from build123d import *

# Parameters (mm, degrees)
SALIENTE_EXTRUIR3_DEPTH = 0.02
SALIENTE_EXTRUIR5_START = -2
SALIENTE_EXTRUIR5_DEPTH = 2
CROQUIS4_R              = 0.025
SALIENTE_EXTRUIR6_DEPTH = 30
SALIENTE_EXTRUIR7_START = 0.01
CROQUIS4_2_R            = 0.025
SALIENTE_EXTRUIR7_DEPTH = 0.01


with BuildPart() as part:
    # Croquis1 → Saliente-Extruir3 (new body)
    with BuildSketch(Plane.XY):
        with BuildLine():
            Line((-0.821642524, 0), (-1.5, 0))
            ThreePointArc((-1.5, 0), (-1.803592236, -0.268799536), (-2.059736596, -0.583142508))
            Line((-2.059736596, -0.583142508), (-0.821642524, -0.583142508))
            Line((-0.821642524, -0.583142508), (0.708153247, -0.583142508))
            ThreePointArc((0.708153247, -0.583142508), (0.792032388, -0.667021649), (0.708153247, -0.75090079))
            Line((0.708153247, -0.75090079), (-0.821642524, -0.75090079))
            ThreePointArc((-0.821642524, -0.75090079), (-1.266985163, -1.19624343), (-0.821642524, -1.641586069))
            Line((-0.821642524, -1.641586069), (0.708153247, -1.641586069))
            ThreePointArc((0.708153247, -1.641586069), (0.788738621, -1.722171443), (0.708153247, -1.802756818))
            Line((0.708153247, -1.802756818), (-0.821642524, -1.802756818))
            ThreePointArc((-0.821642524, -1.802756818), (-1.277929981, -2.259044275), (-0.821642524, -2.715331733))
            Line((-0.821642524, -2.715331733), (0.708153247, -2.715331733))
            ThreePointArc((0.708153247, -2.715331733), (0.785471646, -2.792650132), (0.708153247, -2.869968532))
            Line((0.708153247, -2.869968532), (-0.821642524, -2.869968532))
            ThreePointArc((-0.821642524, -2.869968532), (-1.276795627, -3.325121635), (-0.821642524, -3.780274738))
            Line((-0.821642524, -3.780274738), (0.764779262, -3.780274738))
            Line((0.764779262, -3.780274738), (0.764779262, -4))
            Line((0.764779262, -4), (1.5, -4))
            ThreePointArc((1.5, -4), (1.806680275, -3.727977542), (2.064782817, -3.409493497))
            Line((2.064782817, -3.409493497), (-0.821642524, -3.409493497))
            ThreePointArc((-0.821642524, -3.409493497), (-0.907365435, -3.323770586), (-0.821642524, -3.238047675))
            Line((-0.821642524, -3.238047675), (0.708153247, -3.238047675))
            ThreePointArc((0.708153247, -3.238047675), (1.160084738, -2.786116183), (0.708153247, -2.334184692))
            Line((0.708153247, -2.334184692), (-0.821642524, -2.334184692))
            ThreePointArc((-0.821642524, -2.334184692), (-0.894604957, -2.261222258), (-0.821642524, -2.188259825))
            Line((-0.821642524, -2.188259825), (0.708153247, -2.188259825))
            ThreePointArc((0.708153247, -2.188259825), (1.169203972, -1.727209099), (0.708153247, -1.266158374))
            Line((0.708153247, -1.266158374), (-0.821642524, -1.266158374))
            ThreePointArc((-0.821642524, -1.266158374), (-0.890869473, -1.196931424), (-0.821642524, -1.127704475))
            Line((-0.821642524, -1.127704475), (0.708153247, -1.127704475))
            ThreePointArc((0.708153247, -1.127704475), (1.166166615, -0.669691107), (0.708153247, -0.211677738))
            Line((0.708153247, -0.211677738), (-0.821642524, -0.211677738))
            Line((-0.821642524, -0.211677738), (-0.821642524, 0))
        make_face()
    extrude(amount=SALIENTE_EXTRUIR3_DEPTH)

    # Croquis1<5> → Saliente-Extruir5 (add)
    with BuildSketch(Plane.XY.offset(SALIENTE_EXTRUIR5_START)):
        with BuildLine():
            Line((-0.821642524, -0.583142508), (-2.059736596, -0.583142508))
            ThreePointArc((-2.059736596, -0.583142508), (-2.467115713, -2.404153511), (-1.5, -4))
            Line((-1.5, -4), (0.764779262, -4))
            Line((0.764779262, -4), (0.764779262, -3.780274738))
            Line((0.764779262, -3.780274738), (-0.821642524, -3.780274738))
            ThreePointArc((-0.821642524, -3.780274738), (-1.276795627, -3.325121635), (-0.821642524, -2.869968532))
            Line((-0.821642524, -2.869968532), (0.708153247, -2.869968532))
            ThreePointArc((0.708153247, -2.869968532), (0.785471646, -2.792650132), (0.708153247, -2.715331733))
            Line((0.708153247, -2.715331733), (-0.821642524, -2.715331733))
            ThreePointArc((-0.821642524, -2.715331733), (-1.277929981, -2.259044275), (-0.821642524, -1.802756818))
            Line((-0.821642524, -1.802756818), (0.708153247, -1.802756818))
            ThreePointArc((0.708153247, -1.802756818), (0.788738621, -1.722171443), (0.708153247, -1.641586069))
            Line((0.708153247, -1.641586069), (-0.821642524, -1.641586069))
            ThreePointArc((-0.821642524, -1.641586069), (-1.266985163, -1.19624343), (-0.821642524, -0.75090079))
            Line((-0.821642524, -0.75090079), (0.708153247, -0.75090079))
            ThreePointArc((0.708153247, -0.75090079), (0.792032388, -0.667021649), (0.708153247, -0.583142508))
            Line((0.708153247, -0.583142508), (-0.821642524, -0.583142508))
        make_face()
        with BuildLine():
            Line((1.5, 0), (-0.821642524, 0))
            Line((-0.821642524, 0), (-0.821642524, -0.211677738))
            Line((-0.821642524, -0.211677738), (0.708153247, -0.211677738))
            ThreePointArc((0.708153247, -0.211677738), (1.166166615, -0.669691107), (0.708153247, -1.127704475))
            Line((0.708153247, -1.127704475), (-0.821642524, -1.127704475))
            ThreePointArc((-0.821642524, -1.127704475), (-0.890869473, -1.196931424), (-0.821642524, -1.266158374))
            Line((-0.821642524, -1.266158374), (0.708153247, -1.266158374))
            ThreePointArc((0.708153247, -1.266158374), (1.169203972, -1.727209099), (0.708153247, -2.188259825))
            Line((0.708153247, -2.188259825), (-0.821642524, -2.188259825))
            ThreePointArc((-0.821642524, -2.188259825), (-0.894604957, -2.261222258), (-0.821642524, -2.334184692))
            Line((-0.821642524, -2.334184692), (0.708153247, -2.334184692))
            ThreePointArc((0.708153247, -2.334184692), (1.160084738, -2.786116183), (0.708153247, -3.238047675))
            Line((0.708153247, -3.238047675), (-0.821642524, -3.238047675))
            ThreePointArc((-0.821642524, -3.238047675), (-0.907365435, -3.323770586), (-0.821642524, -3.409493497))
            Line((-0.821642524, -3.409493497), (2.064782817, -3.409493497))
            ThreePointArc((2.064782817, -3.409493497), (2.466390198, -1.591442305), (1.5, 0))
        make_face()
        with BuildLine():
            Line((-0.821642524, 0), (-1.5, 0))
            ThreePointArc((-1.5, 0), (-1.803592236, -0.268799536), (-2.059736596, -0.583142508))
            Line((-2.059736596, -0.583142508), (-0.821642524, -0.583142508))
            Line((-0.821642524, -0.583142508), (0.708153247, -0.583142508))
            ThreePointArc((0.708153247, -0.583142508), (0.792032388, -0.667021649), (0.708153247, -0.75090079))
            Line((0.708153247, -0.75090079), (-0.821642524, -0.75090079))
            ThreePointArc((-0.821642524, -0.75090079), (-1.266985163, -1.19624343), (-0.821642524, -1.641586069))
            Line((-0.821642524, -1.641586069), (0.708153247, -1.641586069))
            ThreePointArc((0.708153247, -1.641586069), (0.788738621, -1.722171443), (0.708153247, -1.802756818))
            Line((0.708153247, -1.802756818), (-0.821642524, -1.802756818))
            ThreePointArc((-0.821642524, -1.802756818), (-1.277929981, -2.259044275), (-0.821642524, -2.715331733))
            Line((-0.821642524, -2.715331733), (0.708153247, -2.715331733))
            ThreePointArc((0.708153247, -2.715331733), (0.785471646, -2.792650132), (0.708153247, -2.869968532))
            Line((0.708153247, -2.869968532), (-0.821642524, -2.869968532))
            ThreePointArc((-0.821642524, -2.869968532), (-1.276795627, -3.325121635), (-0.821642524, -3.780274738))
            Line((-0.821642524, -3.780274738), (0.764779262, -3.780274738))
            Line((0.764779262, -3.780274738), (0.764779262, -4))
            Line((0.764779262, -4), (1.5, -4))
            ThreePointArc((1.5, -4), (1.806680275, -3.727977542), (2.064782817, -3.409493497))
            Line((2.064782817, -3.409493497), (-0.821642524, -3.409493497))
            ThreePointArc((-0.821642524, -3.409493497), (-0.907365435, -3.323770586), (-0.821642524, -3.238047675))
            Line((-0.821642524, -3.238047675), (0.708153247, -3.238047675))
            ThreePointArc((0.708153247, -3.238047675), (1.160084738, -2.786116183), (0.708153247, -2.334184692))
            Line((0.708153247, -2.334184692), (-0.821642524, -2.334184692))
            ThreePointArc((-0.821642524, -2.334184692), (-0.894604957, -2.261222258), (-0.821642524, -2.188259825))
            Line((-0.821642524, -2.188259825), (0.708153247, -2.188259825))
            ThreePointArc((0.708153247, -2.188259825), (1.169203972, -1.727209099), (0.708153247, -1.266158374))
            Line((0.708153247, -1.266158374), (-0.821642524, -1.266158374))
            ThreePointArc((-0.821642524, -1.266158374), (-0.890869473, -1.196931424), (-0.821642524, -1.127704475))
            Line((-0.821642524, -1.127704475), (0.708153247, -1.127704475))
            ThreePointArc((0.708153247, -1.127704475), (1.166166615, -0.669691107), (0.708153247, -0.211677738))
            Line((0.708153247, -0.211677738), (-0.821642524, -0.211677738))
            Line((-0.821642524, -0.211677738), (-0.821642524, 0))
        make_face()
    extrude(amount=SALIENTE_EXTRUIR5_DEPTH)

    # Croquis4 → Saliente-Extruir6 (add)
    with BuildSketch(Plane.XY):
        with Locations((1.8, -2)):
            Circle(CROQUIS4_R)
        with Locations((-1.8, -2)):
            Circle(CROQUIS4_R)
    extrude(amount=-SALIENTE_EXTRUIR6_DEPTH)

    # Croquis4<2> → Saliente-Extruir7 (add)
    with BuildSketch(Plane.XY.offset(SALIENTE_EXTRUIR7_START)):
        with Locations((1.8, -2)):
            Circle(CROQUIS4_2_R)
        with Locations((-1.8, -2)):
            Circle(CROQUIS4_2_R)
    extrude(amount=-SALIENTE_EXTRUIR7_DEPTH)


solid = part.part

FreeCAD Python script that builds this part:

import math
import FreeCAD as App
import Part
import Sketcher
Q = App.Units.Quantity

doc = App.newDocument("Part")
body = doc.addObject("PartDesign::Body", "Body")

sketch1 = body.newObject("Sketcher::SketchObject", "Sketch")
sketch1.AttachmentSupport = (doc.getObject("XY_Plane"), [""])
sketch1.MapMode = "FlatFace"
sketch1.addGeometry(Part.LineSegment(App.Vector(-0.82, 0, 0), App.Vector(-1.5, 0, 0)), False)
sketch1.addGeometry(Part.ArcOfCircle(Part.Circle(App.Vector(0, -2, 0), App.Vector(0, 0, 1), 2.5), math.radians(126.87), math.radians(145.48)), False)
sketch1.addGeometry(Part.LineSegment(App.Vector(-2.06, -0.58, 0), App.Vector(0.71, -0.58, 0)), False)
sketch1.addGeometry(Part.ArcOfCircle(Part.Circle(App.Vector(0.71, -0.67, 0), App.Vector(0, 0, 1), 0.08), math.radians(-90), math.radians(90)), False)
sketch1.addGeometry(Part.LineSegment(App.Vector(0.71, -0.75, 0), App.Vector(-0.82, -0.75, 0)), False)
sketch1.addGeometry(Part.ArcOfCircle(Part.Circle(App.Vector(-0.82, -1.2, 0), App.Vector(0, 0, 1), 0.45), math.radians(90), math.radians(270)), False)
sketch1.addGeometry(Part.LineSegment(App.Vector(-0.82, -1.64, 0), App.Vector(0.71, -1.64, 0)), False)
sketch1.addGeometry(Part.ArcOfCircle(Part.Circle(App.Vector(0.71, -1.72, 0), App.Vector(0, 0, 1), 0.08), math.radians(-90), math.radians(90)), False)
sketch1.addGeometry(Part.LineSegment(App.Vector(0.71, -1.8, 0), App.Vector(-0.82, -1.8, 0)), False)
sketch1.addGeometry(Part.ArcOfCircle(Part.Circle(App.Vector(-0.82, -2.26, 0), App.Vector(0, 0, 1), 0.46), math.radians(90), math.radians(270)), False)
sketch1.addGeometry(Part.LineSegment(App.Vector(-0.82, -2.72, 0), App.Vector(0.71, -2.72, 0)), False)
sketch1.addGeometry(Part.ArcOfCircle(Part.Circle(App.Vector(0.71, -2.79, 0), App.Vector(0, 0, 1), 0.08), math.radians(-90), math.radians(90)), False)
sketch1.addGeometry(Part.LineSegment(App.Vector(0.71, -2.87, 0), App.Vector(-0.82, -2.87, 0)), False)
sketch1.addGeometry(Part.ArcOfCircle(Part.Circle(App.Vector(-0.82, -3.33, 0), App.Vector(0, 0, 1), 0.46), math.radians(90), math.radians(270)), False)
sketch1.addGeometry(Part.LineSegment(App.Vector(-0.82, -3.78, 0), App.Vector(0.76, -3.78, 0)), False)
sketch1.addGeometry(Part.LineSegment(App.Vector(0.76, -3.78, 0), App.Vector(0.76, -4, 0)), False)
sketch1.addGeometry(Part.LineSegment(App.Vector(0.76, -4, 0), App.Vector(1.5, -4, 0)), False)
sketch1.addGeometry(Part.ArcOfCircle(Part.Circle(App.Vector(0, -2, 0), App.Vector(0, 0, 1), 2.5), math.radians(-53.13), math.radians(-34.32)), False)
sketch1.addGeometry(Part.LineSegment(App.Vector(2.06, -3.41, 0), App.Vector(-0.82, -3.41, 0)), False)
sketch1.addGeometry(Part.ArcOfCircle(Part.Circle(App.Vector(-0.82, -3.32, 0), App.Vector(0, 0, 1), 0.09), math.radians(90), math.radians(270)), False)
sketch1.addGeometry(Part.LineSegment(App.Vector(-0.82, -3.24, 0), App.Vector(0.71, -3.24, 0)), False)
sketch1.addGeometry(Part.ArcOfCircle(Part.Circle(App.Vector(0.71, -2.79, 0), App.Vector(0, 0, 1), 0.45), math.radians(-90), math.radians(90)), False)
sketch1.addGeometry(Part.LineSegment(App.Vector(0.71, -2.33, 0), App.Vector(-0.82, -2.33, 0)), False)
sketch1.addGeometry(Part.ArcOfCircle(Part.Circle(App.Vector(-0.82, -2.26, 0), App.Vector(0, 0, 1), 0.07), math.radians(90), math.radians(270)), False)
sketch1.addGeometry(Part.LineSegment(App.Vector(-0.82, -2.19, 0), App.Vector(0.71, -2.19, 0)), False)
sketch1.addGeometry(Part.ArcOfCircle(Part.Circle(App.Vector(0.71, -1.73, 0), App.Vector(0, 0, 1), 0.46), math.radians(-90), math.radians(90)), False)
sketch1.addGeometry(Part.LineSegment(App.Vector(0.71, -1.27, 0), App.Vector(-0.82, -1.27, 0)), False)
sketch1.addGeometry(Part.ArcOfCircle(Part.Circle(App.Vector(-0.82, -1.2, 0), App.Vector(0, 0, 1), 0.07), math.radians(90), math.radians(270)), False)
sketch1.addGeometry(Part.LineSegment(App.Vector(-0.82, -1.13, 0), App.Vector(0.71, -1.13, 0)), False)
sketch1.addGeometry(Part.ArcOfCircle(Part.Circle(App.Vector(0.71, -0.67, 0), App.Vector(0, 0, 1), 0.46), math.radians(-90), math.radians(90)), False)
sketch1.addGeometry(Part.LineSegment(App.Vector(0.71, -0.21, 0), App.Vector(-0.82, -0.21, 0)), False)
sketch1.addGeometry(Part.LineSegment(App.Vector(-0.82, -0.21, 0), App.Vector(-0.82, 0, 0)), False)
sketch1.addConstraint(Sketcher.Constraint("Coincident", 0, 2, 1, 1))
sketch1.addConstraint(Sketcher.Constraint("Coincident", 1, 2, 2, 1))
sketch1.addConstraint(Sketcher.Constraint("Tangent", 2, 2, 3, 2))
sketch1.addConstraint(Sketcher.Constraint("Tangent", 3, 1, 4, 1))
sketch1.addConstraint(Sketcher.Constraint("Tangent", 4, 2, 5, 1))
sketch1.addConstraint(Sketcher.Constraint("Tangent", 5, 2, 6, 1))
sketch1.addConstraint(Sketcher.Constraint("Tangent", 6, 2, 7, 2))
sketch1.addConstraint(Sketcher.Constraint("Tangent", 7, 1, 8, 1))
sketch1.addConstraint(Sketcher.Constraint("Tangent", 8, 2, 9, 1))
sketch1.addConstraint(Sketcher.Constraint("Tangent", 9, 2, 10, 1))
sketch1.addConstraint(Sketcher.Constraint("Tangent", 10, 2, 11, 2))
sketch1.addConstraint(Sketcher.Constraint("Tangent", 11, 1, 12, 1))
sketch1.addConstraint(Sketcher.Constraint("Tangent", 12, 2, 13, 1))
sketch1.addConstraint(Sketcher.Constraint("Tangent", 13, 2, 14, 1))
sketch1.addConstraint(Sketcher.Constraint("Coincident", 14, 2, 15, 1))
sketch1.addConstraint(Sketcher.Constraint("Coincident", 15, 2, 16, 1))
sketch1.addConstraint(Sketcher.Constraint("Coincident", 16, 2, 17, 1))
sketch1.addConstraint(Sketcher.Constraint("Coincident", 17, 2, 18, 1))
sketch1.addConstraint(Sketcher.Constraint("Tangent", 18, 2, 19, 2))
sketch1.addConstraint(Sketcher.Constraint("Tangent", 19, 1, 20, 1))
sketch1.addConstraint(Sketcher.Constraint("Tangent", 20, 2, 21, 1))
sketch1.addConstraint(Sketcher.Constraint("Tangent", 21, 2, 22, 1))
sketch1.addConstraint(Sketcher.Constraint("Tangent", 22, 2, 23, 2))
sketch1.addConstraint(Sketcher.Constraint("Tangent", 23, 1, 24, 1))
sketch1.addConstraint(Sketcher.Constraint("Tangent", 24, 2, 25, 1))
sketch1.addConstraint(Sketcher.Constraint("Tangent", 25, 2, 26, 1))
sketch1.addConstraint(Sketcher.Constraint("Tangent", 26, 2, 27, 2))
sketch1.addConstraint(Sketcher.Constraint("Tangent", 27, 1, 28, 1))
sketch1.addConstraint(Sketcher.Constraint("Tangent", 28, 2, 29, 1))
sketch1.addConstraint(Sketcher.Constraint("Tangent", 29, 2, 30, 1))
sketch1.addConstraint(Sketcher.Constraint("Coincident", 30, 2, 31, 1))
sketch1.addConstraint(Sketcher.Constraint("Coincident", 31, 2, 0, 1))
sketch1.addConstraint(Sketcher.Constraint("Horizontal", 0))
sketch1.addConstraint(Sketcher.Constraint("Horizontal", 2))
sketch1.addConstraint(Sketcher.Constraint("Horizontal", 4))
sketch1.addConstraint(Sketcher.Constraint("Horizontal", 6))
sketch1.addConstraint(Sketcher.Constraint("Horizontal", 8))
sketch1.addConstraint(Sketcher.Constraint("Horizontal", 10))
sketch1.addConstraint(Sketcher.Constraint("Horizontal", 12))
sketch1.addConstraint(Sketcher.Constraint("Horizontal", 14))
sketch1.addConstraint(Sketcher.Constraint("Vertical", 15))
sketch1.addConstraint(Sketcher.Constraint("Horizontal", 16))
sketch1.addConstraint(Sketcher.Constraint("Horizontal", 18))
sketch1.addConstraint(Sketcher.Constraint("Horizontal", 20))
sketch1.addConstraint(Sketcher.Constraint("Horizontal", 22))
sketch1.addConstraint(Sketcher.Constraint("Horizontal", 24))
sketch1.addConstraint(Sketcher.Constraint("Horizontal", 26))
sketch1.addConstraint(Sketcher.Constraint("Horizontal", 28))
sketch1.addConstraint(Sketcher.Constraint("Horizontal", 30))
sketch1.addConstraint(Sketcher.Constraint("Vertical", 31))
sketch1.addConstraint(Sketcher.Constraint("Coincident", 17, 3, 1, 3))
sketch1.addConstraint(Sketcher.Constraint("Equal", 1, 17))
sketch1.addConstraint(Sketcher.Constraint("PointOnObject", 1, 3, -2))
sketch1.addConstraint(Sketcher.Constraint("PointOnObject", 0, 2, -1))
sketch1.addConstraint(Sketcher.Constraint("Vertical", 3, 3, 7, 3))
sketch1.addConstraint(Sketcher.Constraint("Vertical", 5, 3, 9, 3))
sketch1.addConstraint(Sketcher.Constraint("Vertical", 7, 3, 11, 3))
sketch1.addConstraint(Sketcher.Constraint("Vertical", 9, 3, 13, 3))
sketch1.addConstraint(Sketcher.Constraint("Vertical", 13, 3, 19, 3))
sketch1.addConstraint(Sketcher.Constraint("Vertical", 11, 3, 21, 3))
sketch1.addConstraint(Sketcher.Constraint("Vertical", 19, 3, 23, 3))
sketch1.addConstraint(Sketcher.Constraint("Vertical", 21, 3, 25, 3))
sketch1.addConstraint(Sketcher.Constraint("Vertical", 23, 3, 27, 3))
sketch1.addConstraint(Sketcher.Constraint("Vertical", 25, 3, 29, 3))
sketch1.addConstraint(Sketcher.Constraint("Vertical", 27, 1, 30, 2))
sketch1.addConstraint(Sketcher.Constraint("Radius", 1, Q("2.5 mm")))
sketch1.addConstraint(Sketcher.Constraint("DistanceY", 1, 3, -1, 1, Q("2 mm")))
sketch1.addConstraint(Sketcher.Constraint("DistanceY", 15, 2, -1, 1, Q("4 mm")))
sketch1.addConstraint(Sketcher.Constraint("Radius", 3, Q("0.083879 mm")))
sketch1.addConstraint(Sketcher.Constraint("Radius", 11, Q("0.077318 mm")))
sketch1.addConstraint(Sketcher.Constraint("Radius", 21, Q("0.451931 mm")))
sketch1.addConstraint(Sketcher.Constraint("Radius", 25, Q("0.461051 mm")))
sketch1.addConstraint(Sketcher.Constraint("Radius", 5, Q("0.445343 mm")))
sketch1.addConstraint(Sketcher.Constraint("Radius", 7, Q("0.080585 mm")))
sketch1.addConstraint(Sketcher.Constraint("Radius", 9, Q("0.456287 mm")))
sketch1.addConstraint(Sketcher.Constraint("Radius", 13, Q("0.455153 mm")))
sketch1.addConstraint(Sketcher.Constraint("Radius", 19, Q("0.085723 mm")))
sketch1.addConstraint(Sketcher.Constraint("Radius", 23, Q("0.072962 mm")))
sketch1.addConstraint(Sketcher.Constraint("Radius", 27, Q("0.069227 mm")))
sketch1.addConstraint(Sketcher.Constraint("Radius", 29, Q("0.458013 mm")))
sketch1.addConstraint(Sketcher.Constraint("DistanceX", 2, 1, 2, 2, Q("2.76789 mm")))
sketch1.addConstraint(Sketcher.Constraint("DistanceX", 14, 1, 14, 2, Q("1.586422 mm")))
sketch1.addConstraint(Sketcher.Constraint("DistanceX", 16, 1, 16, 2, Q("0.735221 mm")))
sketch1.addConstraint(Sketcher.Constraint("DistanceY", 3, 1, -1, 1, Q("0.750901 mm")))
sketch1.addConstraint(Sketcher.Constraint("DistanceY", 13, 3, 23, 3, Q("1.063899 mm")))
pad1 = body.newObject("PartDesign::Pad", "Pad")
pad1.Profile = sketch1
pad1.Length = 0.02

sketch2 = body.newObject("Sketcher::SketchObject", "Sketch001")
sketch2.AttachmentSupport = (doc.getObject("XY_Plane"), [""])
sketch2.MapMode = "FlatFace"
sketch2.AttachmentOffset = App.Placement(App.Vector(0, 0, -2), App.Rotation())
sketch2.addGeometry(Part.ArcOfCircle(Part.Circle(App.Vector(0, -2, 0), App.Vector(0, 0, 1), 2.5), math.radians(145), math.radians(233)), False)
sketch2.addGeometry(Part.LineSegment(App.Vector(-1.5, -4, 0), App.Vector(1.5, -4, 0)), False)
sketch2.addGeometry(Part.ArcOfCircle(Part.Circle(App.Vector(0, -2, 0), App.Vector(0, 0, 1), 2.5), math.radians(-53.13), math.radians(-34.32)), False)
sketch2.addGeometry(Part.ArcOfCircle(Part.Circle(App.Vector(0, -2, 0), App.Vector(0, 0, 1), 2.5), math.radians(-34), math.radians(53)), False)
sketch2.addGeometry(Part.LineSegment(App.Vector(1.5, 0, 0), App.Vector(-1.5, 0, 0)), False)
sketch2.addGeometry(Part.ArcOfCircle(Part.Circle(App.Vector(0, -2, 0), App.Vector(0, 0, 1), 2.5), math.radians(126.87), math.radians(145.48)), False)
sketch2.addConstraint(Sketcher.Constraint("Coincident", 0, 2, 1, 1))
sketch2.addConstraint(Sketcher.Constraint("Coincident", 1, 2, 2, 1))
sketch2.addConstraint(Sketcher.Constraint("Tangent", 2, 2, 3, 1))
sketch2.addConstraint(Sketcher.Constraint("Coincident", 3, 2, 4, 1))
sketch2.addConstraint(Sketcher.Constraint("Coincident", 4, 2, 5, 1))
sketch2.addConstraint(Sketcher.Constraint("Tangent", 5, 2, 0, 1))
sketch2.addConstraint(Sketcher.Constraint("Horizontal", 1))
sketch2.addConstraint(Sketcher.Constraint("Horizontal", 4))
sketch2.addConstraint(Sketcher.Constraint("Coincident", 2, 3, 0, 3))
sketch2.addConstraint(Sketcher.Constraint("Equal", 0, 2))
sketch2.addConstraint(Sketcher.Constraint("Equal", 2, 3))
sketch2.addConstraint(Sketcher.Constraint("Equal", 3, 5))
sketch2.addConstraint(Sketcher.Constraint("Symmetric", 3, 2, 4, 2, -1, 1))
sketch2.addConstraint(Sketcher.Constraint("Vertical", 1, 2, 3, 2))
sketch2.addConstraint(Sketcher.Constraint("Radius", 0, Q("2.5 mm")))
sketch2.addConstraint(Sketcher.Constraint("DistanceX", 1, 1, 1, 2, Q("3 mm")))
sketch2.addConstraint(Sketcher.Constraint("DistanceX", -1, 1, 2, 2, Q("2.064783 mm")))
sketch2.addConstraint(Sketcher.Constraint("DistanceX", 5, 2, -1, 1, Q("2.059737 mm")))
pad2 = body.newObject("PartDesign::Pad", "Pad001")
pad2.Profile = sketch2
pad2.Length = 2

sketch3 = body.newObject("Sketcher::SketchObject", "Sketch002")
sketch3.AttachmentSupport = (doc.getObject("XY_Plane"), [""])
sketch3.MapMode = "FlatFace"
sketch3.addGeometry(Part.Circle(App.Vector(1.8, -2, 0), App.Vector(0, 0, 1), 0.025), False)
sketch3.addGeometry(Part.Circle(App.Vector(-1.8, -2, 0), App.Vector(0, 0, 1), 0.025), False)
sketch3.addConstraint(Sketcher.Constraint("Equal", 0, 1))
sketch3.addConstraint(Sketcher.Constraint("Symmetric", 0, 3, 1, 3, -2))
sketch3.addConstraint(Sketcher.Constraint("Diameter", 0, Q("0.05 mm")))
sketch3.addConstraint(Sketcher.Constraint("DistanceY", 0, 3, -1, 1, Q("2 mm")))
sketch3.addConstraint(Sketcher.Constraint("DistanceX", -1, 1, 0, 3, Q("1.8 mm")))
pad3 = body.newObject("PartDesign::Pad", "Pad002")
pad3.Profile = sketch3
pad3.Length = 30
pad3.Reversed = True

sketch4 = body.newObject("Sketcher::SketchObject", "Sketch003")
sketch4.AttachmentSupport = (doc.getObject("XY_Plane"), [""])
sketch4.MapMode = "FlatFace"
sketch4.AttachmentOffset = App.Placement(App.Vector(0, 0, 0.01), App.Rotation())
sketch4.addGeometry(Part.Circle(App.Vector(1.8, -2, 0), App.Vector(0, 0, 1), 0.025), False)
sketch4.addGeometry(Part.Circle(App.Vector(-1.8, -2, 0), App.Vector(0, 0, 1), 0.025), False)
sketch4.addConstraint(Sketcher.Constraint("Equal", 0, 1))
sketch4.addConstraint(Sketcher.Constraint("Symmetric", 0, 3, 1, 3, -2))
sketch4.addConstraint(Sketcher.Constraint("Diameter", 0, Q("0.05 mm")))
sketch4.addConstraint(Sketcher.Constraint("DistanceY", 0, 3, -1, 1, Q("2 mm")))
sketch4.addConstraint(Sketcher.Constraint("DistanceX", -1, 1, 0, 3, Q("1.8 mm")))
pad4 = body.newObject("PartDesign::Pad", "Pad003")
pad4.Profile = sketch4
pad4.Length = 0.01
pad4.Reversed = True

doc.recompute()
